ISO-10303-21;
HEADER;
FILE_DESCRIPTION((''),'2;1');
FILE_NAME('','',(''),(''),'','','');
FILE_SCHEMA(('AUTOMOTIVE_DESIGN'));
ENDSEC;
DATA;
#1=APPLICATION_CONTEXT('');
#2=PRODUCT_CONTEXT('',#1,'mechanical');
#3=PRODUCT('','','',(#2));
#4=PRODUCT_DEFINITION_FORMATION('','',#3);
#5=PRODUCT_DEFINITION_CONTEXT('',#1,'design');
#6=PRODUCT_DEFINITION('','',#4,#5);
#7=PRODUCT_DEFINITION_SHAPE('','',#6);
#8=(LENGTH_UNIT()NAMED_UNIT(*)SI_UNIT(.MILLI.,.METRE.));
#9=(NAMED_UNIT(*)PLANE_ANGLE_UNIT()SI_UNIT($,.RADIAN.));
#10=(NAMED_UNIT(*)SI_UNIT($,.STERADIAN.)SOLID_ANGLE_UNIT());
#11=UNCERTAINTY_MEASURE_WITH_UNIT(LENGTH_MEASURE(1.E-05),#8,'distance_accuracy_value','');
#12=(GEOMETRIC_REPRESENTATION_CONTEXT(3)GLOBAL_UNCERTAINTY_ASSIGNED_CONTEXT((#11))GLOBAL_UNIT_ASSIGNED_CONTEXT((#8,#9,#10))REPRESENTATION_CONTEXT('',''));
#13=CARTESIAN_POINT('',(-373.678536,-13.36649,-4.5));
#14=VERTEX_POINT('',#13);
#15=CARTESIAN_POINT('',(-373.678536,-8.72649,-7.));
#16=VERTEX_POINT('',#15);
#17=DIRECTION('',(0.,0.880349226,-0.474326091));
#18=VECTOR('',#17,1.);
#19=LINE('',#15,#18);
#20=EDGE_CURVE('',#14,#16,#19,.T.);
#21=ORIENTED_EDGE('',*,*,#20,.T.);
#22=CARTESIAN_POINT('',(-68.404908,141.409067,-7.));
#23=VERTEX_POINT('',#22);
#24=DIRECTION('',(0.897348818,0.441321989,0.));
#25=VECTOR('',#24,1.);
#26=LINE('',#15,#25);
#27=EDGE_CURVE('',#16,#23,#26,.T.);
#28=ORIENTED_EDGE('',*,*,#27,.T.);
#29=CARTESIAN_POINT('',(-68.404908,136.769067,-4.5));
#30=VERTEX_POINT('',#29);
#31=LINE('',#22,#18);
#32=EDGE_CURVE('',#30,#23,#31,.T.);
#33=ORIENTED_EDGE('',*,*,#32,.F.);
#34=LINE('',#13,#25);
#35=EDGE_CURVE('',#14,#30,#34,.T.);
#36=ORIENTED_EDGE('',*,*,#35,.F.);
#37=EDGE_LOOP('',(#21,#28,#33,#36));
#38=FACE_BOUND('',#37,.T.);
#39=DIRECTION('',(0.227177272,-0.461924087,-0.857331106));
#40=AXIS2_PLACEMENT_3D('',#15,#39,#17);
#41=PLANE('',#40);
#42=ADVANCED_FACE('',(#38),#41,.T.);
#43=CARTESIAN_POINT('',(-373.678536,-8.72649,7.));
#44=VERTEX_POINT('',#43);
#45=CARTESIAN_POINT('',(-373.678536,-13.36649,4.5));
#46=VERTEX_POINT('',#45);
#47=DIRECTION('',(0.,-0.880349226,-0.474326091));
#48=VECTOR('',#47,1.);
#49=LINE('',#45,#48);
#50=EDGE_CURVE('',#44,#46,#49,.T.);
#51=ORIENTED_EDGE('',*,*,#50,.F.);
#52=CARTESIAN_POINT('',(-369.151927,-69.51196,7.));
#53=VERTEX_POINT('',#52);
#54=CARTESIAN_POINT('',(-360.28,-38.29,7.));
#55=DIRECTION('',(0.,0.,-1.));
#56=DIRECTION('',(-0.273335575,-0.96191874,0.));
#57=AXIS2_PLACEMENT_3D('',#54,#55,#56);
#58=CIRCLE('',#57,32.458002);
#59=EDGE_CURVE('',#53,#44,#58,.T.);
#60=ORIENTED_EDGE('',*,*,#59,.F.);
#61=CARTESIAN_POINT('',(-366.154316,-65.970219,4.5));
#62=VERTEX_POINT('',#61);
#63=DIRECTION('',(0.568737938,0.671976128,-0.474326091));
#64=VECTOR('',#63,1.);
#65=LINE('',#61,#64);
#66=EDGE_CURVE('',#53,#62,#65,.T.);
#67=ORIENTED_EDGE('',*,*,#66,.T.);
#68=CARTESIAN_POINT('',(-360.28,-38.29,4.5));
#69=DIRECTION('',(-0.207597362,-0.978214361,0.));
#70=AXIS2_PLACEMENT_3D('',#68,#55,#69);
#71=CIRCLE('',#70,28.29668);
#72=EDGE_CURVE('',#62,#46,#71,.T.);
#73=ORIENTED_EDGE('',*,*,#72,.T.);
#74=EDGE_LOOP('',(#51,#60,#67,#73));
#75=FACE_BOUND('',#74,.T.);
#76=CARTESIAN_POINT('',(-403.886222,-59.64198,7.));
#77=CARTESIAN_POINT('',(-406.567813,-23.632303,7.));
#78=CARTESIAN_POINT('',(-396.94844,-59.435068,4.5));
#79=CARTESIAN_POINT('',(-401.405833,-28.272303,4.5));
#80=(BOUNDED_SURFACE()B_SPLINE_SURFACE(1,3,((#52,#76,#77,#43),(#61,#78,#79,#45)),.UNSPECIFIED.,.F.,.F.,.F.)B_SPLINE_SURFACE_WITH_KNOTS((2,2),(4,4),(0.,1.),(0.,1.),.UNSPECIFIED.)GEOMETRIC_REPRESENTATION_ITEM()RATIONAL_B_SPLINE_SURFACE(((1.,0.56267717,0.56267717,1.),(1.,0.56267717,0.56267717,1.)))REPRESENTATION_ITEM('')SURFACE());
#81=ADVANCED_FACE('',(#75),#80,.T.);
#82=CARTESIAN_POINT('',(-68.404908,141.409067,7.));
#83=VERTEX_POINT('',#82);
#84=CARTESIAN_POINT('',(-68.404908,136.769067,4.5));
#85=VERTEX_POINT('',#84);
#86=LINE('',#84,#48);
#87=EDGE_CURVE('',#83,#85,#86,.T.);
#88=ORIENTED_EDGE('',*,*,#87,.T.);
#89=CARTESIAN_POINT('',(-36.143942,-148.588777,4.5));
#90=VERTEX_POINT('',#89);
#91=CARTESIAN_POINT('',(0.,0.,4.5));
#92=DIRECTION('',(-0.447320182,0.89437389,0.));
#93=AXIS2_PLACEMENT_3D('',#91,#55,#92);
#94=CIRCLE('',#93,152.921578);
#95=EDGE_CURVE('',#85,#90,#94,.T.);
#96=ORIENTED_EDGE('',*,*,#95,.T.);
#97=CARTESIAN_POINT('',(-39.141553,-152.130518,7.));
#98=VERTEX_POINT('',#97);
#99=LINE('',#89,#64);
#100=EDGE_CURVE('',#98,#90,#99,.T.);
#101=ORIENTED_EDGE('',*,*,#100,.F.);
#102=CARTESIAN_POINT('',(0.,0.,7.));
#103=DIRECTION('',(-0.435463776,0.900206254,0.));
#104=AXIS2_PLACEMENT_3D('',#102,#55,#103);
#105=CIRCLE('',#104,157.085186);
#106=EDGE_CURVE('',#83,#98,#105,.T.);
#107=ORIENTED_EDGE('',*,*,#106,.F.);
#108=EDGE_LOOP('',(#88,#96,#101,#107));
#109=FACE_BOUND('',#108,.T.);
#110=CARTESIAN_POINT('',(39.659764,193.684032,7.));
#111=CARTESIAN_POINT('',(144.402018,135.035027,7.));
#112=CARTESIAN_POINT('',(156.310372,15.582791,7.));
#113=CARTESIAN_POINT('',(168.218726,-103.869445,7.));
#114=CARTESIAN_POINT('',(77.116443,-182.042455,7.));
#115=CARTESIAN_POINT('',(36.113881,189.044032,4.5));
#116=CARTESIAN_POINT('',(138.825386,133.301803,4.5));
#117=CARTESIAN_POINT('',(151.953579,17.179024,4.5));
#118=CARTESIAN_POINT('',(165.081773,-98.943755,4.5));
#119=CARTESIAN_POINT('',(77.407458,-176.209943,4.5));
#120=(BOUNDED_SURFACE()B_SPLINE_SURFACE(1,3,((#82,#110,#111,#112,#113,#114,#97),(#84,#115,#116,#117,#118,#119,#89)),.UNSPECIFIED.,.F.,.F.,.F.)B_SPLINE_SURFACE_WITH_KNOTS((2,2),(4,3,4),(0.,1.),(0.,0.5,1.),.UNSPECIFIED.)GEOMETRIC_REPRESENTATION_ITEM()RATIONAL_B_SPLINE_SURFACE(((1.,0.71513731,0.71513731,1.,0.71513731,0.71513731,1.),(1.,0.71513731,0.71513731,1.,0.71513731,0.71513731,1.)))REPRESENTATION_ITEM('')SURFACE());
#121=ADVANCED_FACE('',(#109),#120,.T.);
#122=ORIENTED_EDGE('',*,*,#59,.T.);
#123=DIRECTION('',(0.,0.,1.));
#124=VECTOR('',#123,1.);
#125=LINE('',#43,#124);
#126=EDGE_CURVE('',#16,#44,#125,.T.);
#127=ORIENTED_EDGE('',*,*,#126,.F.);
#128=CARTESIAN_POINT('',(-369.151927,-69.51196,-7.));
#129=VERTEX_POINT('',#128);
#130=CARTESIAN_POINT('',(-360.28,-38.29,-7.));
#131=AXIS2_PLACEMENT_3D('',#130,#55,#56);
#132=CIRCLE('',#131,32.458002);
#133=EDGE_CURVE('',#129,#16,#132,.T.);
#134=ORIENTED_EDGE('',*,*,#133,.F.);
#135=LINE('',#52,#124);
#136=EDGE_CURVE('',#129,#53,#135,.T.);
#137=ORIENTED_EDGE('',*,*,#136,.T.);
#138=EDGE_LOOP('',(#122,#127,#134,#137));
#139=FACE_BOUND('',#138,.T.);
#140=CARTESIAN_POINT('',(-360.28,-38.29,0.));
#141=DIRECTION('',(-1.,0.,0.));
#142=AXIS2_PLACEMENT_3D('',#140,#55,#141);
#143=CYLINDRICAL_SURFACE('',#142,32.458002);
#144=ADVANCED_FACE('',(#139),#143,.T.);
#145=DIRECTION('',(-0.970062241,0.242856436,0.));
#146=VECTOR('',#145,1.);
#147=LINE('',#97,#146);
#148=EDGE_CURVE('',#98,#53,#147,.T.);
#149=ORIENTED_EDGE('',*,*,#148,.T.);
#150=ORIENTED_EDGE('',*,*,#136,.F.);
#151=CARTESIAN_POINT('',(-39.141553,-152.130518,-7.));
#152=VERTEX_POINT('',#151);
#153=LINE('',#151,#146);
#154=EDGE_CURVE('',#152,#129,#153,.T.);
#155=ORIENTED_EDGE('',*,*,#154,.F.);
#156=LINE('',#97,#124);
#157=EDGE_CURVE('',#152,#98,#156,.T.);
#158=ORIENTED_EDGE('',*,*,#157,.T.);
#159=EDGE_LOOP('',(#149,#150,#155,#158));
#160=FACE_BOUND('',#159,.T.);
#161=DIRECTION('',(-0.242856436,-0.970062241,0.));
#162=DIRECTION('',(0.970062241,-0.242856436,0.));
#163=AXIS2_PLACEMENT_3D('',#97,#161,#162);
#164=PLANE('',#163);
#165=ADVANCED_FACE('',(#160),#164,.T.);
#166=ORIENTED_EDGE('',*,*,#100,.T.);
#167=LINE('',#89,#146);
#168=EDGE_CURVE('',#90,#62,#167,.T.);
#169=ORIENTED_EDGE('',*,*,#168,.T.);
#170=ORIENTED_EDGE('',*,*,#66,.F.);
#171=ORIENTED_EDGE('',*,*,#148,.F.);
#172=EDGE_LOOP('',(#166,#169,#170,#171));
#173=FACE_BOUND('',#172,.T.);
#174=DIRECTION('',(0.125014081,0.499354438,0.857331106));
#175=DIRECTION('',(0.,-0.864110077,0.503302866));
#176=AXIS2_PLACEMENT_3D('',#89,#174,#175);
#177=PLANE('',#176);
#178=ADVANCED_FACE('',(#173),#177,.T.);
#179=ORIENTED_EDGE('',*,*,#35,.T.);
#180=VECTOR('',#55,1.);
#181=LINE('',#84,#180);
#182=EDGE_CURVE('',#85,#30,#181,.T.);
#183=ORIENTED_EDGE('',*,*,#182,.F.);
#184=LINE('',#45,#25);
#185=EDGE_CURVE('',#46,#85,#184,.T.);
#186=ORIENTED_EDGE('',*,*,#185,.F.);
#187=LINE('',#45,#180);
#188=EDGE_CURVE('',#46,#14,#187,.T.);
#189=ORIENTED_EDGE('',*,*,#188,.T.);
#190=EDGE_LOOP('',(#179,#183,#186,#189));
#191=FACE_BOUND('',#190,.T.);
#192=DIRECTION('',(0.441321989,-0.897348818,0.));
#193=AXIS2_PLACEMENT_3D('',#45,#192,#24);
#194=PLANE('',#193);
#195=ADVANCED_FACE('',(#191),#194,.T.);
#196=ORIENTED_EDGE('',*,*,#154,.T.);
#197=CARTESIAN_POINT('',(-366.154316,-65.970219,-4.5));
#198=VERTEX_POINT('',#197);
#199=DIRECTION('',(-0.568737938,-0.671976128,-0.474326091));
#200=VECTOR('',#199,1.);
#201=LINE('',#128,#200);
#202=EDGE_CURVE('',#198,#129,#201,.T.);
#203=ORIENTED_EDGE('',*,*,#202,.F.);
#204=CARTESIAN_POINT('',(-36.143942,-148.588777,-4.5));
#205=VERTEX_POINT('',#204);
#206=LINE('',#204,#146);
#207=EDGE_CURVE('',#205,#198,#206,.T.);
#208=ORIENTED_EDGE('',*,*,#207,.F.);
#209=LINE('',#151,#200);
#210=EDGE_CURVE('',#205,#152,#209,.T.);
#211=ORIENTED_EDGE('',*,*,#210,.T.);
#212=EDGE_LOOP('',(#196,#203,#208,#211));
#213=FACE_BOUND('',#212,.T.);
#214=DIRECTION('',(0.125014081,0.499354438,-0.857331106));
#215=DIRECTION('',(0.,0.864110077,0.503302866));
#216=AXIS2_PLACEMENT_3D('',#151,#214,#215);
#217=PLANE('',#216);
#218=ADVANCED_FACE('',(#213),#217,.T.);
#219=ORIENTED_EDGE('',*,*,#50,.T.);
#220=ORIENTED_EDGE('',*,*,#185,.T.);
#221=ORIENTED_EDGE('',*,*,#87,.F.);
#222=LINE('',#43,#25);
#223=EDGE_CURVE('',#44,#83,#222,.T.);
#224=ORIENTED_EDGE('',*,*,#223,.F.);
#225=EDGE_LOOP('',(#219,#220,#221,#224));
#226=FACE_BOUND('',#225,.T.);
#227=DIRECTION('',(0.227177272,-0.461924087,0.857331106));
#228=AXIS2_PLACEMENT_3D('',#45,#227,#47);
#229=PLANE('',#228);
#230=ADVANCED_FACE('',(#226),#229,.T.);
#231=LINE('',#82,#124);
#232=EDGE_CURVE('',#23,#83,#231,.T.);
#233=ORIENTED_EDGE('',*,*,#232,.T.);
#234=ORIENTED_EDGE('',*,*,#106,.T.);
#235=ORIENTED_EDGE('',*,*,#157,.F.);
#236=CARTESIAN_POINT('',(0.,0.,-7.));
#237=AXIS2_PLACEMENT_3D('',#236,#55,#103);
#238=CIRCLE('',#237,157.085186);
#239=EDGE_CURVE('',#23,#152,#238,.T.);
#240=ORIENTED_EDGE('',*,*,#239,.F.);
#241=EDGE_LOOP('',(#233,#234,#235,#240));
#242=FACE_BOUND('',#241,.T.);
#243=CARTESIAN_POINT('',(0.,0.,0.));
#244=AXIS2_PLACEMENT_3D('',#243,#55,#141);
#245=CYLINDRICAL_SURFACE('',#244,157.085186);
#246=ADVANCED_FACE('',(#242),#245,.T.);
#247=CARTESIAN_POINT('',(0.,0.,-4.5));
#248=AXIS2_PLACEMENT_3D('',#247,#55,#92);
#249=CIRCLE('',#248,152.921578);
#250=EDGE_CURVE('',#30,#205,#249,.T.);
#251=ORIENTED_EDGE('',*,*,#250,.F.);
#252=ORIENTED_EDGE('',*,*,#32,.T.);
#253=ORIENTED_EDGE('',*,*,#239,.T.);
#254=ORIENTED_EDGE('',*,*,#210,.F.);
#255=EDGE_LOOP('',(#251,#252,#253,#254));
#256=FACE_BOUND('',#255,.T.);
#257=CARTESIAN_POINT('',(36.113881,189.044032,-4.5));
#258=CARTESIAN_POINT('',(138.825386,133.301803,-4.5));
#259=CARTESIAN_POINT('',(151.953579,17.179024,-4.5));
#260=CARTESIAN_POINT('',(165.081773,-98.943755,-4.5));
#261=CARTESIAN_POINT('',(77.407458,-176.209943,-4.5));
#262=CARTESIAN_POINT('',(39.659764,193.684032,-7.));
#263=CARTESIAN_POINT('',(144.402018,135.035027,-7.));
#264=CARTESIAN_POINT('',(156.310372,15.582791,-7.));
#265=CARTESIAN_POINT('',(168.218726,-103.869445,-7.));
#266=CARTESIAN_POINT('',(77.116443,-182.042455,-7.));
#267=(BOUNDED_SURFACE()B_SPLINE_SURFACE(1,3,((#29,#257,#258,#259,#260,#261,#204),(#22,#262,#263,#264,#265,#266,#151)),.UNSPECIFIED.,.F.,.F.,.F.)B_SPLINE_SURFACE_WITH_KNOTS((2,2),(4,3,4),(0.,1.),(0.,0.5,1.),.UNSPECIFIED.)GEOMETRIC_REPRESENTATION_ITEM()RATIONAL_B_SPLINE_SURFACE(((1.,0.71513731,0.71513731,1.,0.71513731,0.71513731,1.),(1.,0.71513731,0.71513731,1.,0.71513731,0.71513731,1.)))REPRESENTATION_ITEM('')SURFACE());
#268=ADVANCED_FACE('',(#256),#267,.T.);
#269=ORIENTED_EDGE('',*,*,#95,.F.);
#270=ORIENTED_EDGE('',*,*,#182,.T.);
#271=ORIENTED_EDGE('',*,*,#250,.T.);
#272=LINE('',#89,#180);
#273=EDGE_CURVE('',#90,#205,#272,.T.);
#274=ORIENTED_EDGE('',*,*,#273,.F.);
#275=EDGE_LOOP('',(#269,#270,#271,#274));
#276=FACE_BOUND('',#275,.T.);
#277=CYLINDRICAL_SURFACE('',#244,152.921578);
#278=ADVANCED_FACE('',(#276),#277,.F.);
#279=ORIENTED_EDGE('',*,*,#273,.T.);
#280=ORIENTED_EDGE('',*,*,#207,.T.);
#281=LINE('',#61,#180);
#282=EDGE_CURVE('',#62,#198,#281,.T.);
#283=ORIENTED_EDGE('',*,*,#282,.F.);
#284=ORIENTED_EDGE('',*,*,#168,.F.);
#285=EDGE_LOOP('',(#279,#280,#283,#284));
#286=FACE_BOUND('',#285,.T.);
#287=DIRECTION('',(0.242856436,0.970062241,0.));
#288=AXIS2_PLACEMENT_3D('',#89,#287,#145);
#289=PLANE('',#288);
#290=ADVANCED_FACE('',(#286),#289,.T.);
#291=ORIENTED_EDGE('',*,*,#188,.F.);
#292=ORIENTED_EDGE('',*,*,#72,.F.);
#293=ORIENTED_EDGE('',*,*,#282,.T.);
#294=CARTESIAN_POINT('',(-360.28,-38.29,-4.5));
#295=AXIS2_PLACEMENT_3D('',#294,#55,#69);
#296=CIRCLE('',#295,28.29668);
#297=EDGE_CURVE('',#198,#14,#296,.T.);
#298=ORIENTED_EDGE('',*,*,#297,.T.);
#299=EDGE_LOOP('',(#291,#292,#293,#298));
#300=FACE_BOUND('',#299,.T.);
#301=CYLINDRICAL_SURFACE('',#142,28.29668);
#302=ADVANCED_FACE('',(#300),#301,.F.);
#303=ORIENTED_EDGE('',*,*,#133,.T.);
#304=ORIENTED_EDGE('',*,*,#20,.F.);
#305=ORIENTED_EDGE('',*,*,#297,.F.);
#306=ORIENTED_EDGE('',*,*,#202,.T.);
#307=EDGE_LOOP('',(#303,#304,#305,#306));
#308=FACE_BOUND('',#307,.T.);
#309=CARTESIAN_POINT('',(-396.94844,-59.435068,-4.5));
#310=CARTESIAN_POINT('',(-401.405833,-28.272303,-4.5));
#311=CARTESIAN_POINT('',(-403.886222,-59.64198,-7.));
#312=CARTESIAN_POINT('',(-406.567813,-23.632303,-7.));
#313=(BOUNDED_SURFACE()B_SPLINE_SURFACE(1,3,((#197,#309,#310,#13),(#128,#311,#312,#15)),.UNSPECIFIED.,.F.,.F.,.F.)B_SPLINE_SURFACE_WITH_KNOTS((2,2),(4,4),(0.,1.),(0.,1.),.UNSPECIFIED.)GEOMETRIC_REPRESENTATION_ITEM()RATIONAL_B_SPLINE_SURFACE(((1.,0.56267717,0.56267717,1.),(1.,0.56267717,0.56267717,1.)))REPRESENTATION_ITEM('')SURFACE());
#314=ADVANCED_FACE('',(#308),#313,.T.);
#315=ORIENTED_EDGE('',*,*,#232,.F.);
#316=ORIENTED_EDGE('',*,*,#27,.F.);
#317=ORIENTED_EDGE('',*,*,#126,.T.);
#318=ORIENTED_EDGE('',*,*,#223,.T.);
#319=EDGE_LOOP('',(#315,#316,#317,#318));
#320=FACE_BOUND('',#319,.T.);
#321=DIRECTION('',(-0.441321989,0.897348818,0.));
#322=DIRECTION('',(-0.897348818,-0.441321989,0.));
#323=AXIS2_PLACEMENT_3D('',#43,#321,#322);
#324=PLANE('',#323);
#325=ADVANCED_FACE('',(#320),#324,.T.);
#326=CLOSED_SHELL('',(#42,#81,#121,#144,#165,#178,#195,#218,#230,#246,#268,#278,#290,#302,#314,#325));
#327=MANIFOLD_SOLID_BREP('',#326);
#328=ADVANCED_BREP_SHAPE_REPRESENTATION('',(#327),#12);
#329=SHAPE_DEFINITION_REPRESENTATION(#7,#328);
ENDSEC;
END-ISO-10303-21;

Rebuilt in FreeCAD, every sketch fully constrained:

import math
import FreeCAD as App
import Part
import Sketcher

doc = App.newDocument("Part")
body = doc.addObject("PartDesign::Body", "Body")

# Sketch on YZ plane
sketch1 = doc.addObject("Sketcher::SketchObject", "Sketch")
body.addObject(sketch1)
sketch1.AttachmentSupport = (doc.YZ_Plane, [""])
sketch1.MapMode = "FlatFace"
sketch1.AttachmentOffset = App.Placement(App.Vector(0, 0, -68.404908), App.Rotation())
sketch1.addGeometry(Part.LineSegment(App.Vector(137, 4, 0), App.Vector(137, -4, 0)), False)
sketch1.addGeometry(Part.LineSegment(App.Vector(137, -4, 0), App.Vector(141, -7, 0)), False)
sketch1.addGeometry(Part.LineSegment(App.Vector(141, -7, 0), App.Vector(141, 7, 0)), False)
sketch1.addGeometry(Part.LineSegment(App.Vector(141, 7, 0), App.Vector(137, 4, 0)), False)
sketch1.addConstraint(Sketcher.Constraint("Coincident", 0, 2, 1, 1))
sketch1.addConstraint(Sketcher.Constraint("Coincident", 1, 2, 2, 1))
sketch1.addConstraint(Sketcher.Constraint("Coincident", 2, 2, 3, 1))
sketch1.addConstraint(Sketcher.Constraint("Coincident", 3, 2, 0, 1))
sketch1.addConstraint(Sketcher.Constraint("Vertical", 0))
sketch1.addConstraint(Sketcher.Constraint("Vertical", 2))
sketch1.addConstraint(Sketcher.Constraint("Equal", 1, 3))
sketch1.addConstraint(Sketcher.Constraint("DistanceY", 0, 2, 0, 1, 9.0))
sketch1.addConstraint(Sketcher.Constraint("DistanceY", 2, 1, 2, 2, 14.0))
sketch1.addConstraint(Sketcher.Constraint("DistanceY", 1, 2, -1, 1, 7.0))
sketch1.addConstraint(Sketcher.Constraint("DistanceX", 0, 2, 1, 2, 4.64))
sketch1.addConstraint(Sketcher.Constraint("DistanceX", -1, 1, 0, 2, 136.769067))

# Sketch on XY plane
sketch2 = doc.addObject("Sketcher::SketchObject", "Sketch001")
body.addObject(sketch2)
sketch2.AttachmentSupport = (doc.XY_Plane, [""])
sketch2.MapMode = "FlatFace"
sketch2.addGeometry(Part.LineSegment(App.Vector(-38, -150, 0), App.Vector(-368, -68, 0)), False)
sketch2.addGeometry(Part.ArcOfCircle(Part.Circle(App.Vector(-360, -38, 0), App.Vector(0, 0, 1), 30), math.radians(116), math.radians(256)), False)
sketch2.addGeometry(Part.LineSegment(App.Vector(-374, -11, 0), App.Vector(-68, 139, 0)), False)
sketch2.addGeometry(Part.ArcOfCircle(Part.Circle(App.Vector(0, 0, 0), App.Vector(0, 0, 1), 155), math.radians(-104), math.radians(116)), False)
sketch2.addConstraint(Sketcher.Constraint("Tangent", 0, 2, 1, 2))
sketch2.addConstraint(Sketcher.Constraint("Tangent", 1, 1, 2, 1))
sketch2.addConstraint(Sketcher.Constraint("Tangent", 2, 2, 3, 2))
sketch2.addConstraint(Sketcher.Constraint("Tangent", 3, 1, 0, 1))
sketch2.addConstraint(Sketcher.Constraint("Coincident", 3, 3, -1, 1))
sketch2.addConstraint(Sketcher.Constraint("Radius", 3, 155.0))
sketch2.addConstraint(Sketcher.Constraint("Radius", 1, 30.36))
sketch2.addConstraint(Sketcher.Constraint("DistanceX", 1, 3, -1, 1, 360.28))
sketch2.addConstraint(Sketcher.Constraint("DistanceY", 1, 3, -1, 1, 38.29))
doc.recompute()

additivepipe = doc.addObject("PartDesign::AdditivePipe", "AdditivePipe")
body.addObject(additivepipe)
additivepipe.Profile = sketch1
additivepipe.Spine = (sketch2, ["Edge1", "Edge2", "Edge3", "Edge4"])

doc.recompute()
